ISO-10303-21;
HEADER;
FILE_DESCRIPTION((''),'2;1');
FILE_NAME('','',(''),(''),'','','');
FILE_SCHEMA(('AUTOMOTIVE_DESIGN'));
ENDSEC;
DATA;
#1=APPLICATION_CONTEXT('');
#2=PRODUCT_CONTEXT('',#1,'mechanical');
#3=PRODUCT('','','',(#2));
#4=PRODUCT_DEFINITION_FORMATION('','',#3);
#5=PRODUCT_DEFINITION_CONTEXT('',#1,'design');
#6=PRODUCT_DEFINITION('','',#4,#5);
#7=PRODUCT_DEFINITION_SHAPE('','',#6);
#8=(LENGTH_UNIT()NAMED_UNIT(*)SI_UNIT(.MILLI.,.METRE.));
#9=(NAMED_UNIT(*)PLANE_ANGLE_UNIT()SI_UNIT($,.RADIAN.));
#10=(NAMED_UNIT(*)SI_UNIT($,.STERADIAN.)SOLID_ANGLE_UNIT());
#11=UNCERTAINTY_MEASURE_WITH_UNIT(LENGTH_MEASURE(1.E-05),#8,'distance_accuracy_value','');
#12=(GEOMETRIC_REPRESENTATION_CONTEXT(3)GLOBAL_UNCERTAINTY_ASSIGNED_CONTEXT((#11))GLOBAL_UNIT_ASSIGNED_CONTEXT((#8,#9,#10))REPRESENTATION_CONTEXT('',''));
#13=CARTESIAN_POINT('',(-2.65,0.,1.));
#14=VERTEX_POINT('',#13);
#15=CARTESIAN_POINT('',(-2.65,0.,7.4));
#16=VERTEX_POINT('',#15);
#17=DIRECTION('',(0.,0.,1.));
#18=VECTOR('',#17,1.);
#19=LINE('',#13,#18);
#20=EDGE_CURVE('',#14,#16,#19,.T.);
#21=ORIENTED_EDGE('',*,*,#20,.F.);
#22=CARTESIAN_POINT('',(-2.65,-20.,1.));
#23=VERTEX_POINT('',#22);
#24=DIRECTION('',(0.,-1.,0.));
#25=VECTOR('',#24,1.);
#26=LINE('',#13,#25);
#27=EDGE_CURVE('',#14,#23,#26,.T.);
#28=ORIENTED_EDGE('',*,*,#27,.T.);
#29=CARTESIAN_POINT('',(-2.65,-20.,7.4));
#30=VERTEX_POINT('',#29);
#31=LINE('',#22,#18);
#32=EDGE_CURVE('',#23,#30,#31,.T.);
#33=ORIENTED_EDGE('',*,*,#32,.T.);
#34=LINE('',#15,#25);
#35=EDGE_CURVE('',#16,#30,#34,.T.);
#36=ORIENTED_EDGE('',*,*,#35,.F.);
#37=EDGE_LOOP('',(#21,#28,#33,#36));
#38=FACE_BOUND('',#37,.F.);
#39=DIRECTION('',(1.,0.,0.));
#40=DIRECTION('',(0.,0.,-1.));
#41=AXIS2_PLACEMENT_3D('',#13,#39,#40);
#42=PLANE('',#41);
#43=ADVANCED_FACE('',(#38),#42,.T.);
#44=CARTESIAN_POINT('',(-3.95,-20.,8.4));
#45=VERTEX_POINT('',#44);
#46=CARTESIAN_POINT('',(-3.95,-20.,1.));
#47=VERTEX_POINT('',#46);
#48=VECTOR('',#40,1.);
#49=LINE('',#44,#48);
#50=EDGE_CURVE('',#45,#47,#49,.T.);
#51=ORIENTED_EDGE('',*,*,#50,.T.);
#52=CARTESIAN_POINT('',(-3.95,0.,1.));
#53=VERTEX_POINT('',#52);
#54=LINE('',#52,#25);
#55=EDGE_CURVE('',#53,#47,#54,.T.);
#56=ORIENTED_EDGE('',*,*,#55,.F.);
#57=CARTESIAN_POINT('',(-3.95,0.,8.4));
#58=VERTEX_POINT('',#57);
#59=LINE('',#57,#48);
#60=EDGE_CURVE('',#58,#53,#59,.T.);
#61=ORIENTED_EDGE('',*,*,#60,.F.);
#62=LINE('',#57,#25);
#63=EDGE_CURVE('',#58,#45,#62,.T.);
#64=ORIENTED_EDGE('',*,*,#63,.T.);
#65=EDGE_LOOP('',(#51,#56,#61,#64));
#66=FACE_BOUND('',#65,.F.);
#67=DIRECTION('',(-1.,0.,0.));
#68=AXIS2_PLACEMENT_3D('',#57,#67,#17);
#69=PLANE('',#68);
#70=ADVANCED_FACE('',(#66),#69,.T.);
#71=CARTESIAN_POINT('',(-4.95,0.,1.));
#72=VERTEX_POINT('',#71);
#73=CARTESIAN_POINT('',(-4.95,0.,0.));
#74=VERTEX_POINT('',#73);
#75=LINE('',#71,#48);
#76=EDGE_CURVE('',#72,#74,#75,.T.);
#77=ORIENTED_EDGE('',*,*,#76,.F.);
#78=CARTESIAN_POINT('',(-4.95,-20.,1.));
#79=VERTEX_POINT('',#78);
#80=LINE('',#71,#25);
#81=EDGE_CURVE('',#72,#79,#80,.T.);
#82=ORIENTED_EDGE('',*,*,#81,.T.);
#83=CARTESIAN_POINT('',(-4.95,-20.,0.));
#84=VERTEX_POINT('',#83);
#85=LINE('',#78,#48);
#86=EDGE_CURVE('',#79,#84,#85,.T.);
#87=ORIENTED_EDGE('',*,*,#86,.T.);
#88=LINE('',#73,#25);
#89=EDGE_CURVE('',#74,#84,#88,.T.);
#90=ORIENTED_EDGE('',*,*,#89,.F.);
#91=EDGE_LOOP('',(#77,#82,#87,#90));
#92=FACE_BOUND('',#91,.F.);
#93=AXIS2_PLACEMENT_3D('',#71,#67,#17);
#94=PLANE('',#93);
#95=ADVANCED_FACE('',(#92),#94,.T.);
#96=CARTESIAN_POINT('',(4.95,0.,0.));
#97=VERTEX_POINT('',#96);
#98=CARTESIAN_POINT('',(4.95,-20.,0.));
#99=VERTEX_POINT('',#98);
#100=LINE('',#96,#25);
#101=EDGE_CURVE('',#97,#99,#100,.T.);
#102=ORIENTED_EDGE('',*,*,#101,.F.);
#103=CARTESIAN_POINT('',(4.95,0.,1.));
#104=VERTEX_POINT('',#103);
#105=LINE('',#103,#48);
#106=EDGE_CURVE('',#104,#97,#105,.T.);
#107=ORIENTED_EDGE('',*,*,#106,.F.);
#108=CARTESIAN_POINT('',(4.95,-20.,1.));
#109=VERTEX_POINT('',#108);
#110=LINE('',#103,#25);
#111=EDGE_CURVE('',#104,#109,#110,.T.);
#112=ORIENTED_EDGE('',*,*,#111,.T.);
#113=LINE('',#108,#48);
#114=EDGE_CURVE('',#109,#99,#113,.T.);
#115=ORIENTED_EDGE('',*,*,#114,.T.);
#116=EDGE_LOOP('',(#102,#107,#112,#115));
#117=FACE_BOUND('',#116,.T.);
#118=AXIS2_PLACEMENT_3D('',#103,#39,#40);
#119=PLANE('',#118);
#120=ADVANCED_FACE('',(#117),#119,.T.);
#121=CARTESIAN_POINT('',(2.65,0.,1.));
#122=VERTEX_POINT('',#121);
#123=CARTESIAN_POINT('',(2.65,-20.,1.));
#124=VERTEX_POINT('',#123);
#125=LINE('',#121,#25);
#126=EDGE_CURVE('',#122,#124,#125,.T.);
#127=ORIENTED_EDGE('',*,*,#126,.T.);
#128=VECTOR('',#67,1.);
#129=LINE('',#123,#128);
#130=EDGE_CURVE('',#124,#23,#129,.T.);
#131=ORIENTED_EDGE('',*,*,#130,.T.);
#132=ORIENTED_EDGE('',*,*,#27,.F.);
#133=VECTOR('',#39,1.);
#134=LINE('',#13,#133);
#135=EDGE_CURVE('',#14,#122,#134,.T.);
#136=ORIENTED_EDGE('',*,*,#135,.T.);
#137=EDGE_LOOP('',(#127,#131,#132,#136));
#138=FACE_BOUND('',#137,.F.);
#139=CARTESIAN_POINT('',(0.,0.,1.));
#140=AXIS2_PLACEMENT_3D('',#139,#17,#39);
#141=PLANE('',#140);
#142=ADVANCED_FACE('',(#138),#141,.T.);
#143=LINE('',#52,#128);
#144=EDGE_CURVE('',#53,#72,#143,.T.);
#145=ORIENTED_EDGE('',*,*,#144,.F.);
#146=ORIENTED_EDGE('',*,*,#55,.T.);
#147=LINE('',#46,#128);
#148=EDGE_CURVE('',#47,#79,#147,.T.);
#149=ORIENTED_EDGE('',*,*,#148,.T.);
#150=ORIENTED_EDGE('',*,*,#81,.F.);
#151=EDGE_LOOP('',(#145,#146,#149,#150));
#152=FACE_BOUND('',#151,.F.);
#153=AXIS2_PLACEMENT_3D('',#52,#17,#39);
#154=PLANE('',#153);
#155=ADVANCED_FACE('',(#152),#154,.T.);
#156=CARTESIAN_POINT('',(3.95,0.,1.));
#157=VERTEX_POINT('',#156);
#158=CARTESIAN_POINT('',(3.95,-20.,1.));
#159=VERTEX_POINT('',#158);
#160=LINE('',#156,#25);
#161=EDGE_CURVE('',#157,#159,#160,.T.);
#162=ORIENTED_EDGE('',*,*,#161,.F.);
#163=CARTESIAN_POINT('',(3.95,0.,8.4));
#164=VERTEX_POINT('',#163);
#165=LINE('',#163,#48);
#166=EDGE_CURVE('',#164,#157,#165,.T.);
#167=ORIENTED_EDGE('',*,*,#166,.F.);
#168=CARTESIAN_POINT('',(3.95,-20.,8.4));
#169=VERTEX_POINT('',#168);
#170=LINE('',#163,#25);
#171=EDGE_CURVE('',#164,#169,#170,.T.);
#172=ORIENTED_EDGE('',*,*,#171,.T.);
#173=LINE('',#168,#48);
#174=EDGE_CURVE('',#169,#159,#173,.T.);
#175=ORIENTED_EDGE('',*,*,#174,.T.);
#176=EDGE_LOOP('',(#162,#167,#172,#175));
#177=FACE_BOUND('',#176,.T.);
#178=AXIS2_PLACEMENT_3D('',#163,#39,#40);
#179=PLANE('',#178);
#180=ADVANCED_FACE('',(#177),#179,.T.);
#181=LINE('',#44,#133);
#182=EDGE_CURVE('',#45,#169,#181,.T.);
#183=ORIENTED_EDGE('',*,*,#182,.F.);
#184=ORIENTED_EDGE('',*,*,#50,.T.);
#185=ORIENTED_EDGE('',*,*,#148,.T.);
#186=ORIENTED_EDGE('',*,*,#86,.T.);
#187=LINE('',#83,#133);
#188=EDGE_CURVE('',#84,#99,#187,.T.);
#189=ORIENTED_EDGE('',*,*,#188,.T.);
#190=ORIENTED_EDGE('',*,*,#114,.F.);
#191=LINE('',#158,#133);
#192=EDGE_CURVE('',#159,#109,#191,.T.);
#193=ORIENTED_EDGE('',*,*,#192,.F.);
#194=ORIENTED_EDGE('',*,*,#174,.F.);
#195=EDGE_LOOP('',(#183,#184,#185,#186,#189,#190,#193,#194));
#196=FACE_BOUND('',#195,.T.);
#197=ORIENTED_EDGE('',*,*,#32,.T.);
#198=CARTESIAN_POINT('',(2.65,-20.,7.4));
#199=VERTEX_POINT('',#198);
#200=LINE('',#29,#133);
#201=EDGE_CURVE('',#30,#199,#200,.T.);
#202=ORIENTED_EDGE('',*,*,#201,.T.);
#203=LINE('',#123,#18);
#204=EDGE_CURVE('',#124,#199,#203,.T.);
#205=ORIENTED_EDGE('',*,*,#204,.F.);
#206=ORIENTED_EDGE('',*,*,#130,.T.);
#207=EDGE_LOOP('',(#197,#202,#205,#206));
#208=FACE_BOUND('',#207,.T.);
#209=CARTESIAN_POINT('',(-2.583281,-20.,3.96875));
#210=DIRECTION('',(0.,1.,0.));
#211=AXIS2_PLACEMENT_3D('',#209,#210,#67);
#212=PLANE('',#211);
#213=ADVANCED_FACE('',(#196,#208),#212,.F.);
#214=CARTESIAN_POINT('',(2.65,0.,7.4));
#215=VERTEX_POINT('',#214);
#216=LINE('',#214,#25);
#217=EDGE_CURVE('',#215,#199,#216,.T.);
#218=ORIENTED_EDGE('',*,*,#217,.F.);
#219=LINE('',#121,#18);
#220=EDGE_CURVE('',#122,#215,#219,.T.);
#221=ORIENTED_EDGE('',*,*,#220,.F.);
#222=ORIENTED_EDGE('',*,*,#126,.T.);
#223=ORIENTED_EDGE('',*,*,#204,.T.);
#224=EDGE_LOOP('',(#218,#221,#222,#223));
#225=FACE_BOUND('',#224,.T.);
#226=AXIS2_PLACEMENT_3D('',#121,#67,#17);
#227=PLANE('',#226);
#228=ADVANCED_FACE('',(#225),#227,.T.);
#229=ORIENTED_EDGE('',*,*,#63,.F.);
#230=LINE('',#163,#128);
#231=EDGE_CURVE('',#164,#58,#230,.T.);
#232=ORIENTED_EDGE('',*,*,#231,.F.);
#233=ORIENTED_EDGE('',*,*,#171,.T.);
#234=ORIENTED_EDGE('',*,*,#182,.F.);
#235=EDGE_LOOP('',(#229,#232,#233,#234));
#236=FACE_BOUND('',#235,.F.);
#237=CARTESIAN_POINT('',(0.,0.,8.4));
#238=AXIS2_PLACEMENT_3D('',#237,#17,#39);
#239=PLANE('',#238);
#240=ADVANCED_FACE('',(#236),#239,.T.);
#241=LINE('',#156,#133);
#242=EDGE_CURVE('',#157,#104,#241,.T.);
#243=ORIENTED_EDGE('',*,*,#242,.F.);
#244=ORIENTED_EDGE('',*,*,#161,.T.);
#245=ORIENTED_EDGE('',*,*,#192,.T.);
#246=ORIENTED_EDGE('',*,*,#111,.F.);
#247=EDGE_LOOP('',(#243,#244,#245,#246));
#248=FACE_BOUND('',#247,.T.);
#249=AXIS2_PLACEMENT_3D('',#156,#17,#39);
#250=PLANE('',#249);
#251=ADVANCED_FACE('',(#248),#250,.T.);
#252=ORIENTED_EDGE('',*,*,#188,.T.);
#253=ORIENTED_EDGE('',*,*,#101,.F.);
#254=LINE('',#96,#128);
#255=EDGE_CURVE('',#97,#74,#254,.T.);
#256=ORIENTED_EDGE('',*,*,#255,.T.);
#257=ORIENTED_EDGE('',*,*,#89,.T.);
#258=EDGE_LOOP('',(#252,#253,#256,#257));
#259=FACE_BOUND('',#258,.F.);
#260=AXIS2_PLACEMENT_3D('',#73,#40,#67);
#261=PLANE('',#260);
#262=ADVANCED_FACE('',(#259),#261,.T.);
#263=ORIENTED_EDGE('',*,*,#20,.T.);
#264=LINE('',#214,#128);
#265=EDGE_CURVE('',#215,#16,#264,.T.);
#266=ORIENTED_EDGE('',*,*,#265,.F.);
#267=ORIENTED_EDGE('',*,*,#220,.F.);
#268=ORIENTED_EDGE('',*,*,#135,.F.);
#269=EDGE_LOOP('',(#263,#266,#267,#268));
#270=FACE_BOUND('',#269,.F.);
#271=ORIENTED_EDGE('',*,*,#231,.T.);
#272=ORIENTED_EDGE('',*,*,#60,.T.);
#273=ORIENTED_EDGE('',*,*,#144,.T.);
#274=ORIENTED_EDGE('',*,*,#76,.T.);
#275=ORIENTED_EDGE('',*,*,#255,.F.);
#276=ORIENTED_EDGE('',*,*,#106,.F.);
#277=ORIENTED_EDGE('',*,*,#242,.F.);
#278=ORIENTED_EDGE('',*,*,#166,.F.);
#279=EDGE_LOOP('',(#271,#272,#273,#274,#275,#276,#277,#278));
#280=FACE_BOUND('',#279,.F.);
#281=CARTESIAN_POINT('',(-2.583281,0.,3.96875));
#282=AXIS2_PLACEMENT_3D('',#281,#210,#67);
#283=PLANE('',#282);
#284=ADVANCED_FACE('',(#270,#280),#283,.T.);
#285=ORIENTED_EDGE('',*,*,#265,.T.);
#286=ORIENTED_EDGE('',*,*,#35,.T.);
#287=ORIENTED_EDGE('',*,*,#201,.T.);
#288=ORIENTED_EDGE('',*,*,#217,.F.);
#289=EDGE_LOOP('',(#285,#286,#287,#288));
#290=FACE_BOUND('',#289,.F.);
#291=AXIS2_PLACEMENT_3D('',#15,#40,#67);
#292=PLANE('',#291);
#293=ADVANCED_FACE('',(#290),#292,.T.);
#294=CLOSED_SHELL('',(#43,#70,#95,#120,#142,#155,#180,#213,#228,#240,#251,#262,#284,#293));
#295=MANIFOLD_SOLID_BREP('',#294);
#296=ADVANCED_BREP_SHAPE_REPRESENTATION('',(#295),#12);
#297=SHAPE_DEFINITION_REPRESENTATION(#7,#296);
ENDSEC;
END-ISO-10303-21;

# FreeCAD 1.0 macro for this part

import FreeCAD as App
import Part
import Sketcher
from FreeCAD import Vector


def add_polygon(sketch, points):
    """Adds a closed chain of lines whose ends are joined by coincident constraints."""
    first, n = sketch.GeometryCount, len(points)
    for a, b in zip(points, points[1:] + points[:1]):
        sketch.addGeometry(Part.LineSegment(App.Vector(*a, 0), App.Vector(*b, 0)), False)
    for i in range(n):
        sketch.addConstraint(Sketcher.Constraint("Coincident", first + i, 2, first + (i + 1) % n, 1))

doc = App.newDocument("Part")
body = doc.addObject("PartDesign::Body", "Body")

# Sketch on XZ plane
sketch1 = body.newObject("Sketcher::SketchObject", "Sketch")
sketch1.AttachmentSupport = (doc.getObject("XZ_Plane"), [""])
sketch1.MapMode = "FlatFace"
add_polygon(sketch1, [(4, 1), (4, 8.4), (0, 8.4), (0, 7.4), (2.6, 7.4), (2.6, 1), (0, 1), (0, 0), (5, 0), (5, 1)])  # lines 0-9
sketch1.addConstraint([
    Sketcher.Constraint("Vertical", 0),
    Sketcher.Constraint("Horizontal", 1),
    Sketcher.Constraint("Vertical", 2),
    Sketcher.Constraint("Horizontal", 3),
    Sketcher.Constraint("Vertical", 4),
    Sketcher.Constraint("Horizontal", 5),
    Sketcher.Constraint("Vertical", 6),
    Sketcher.Constraint("Horizontal", 7),
    Sketcher.Constraint("Vertical", 8),
    Sketcher.Constraint("Horizontal", 9),
    Sketcher.Constraint("Coincident", 6, 2, -1, 1),
    Sketcher.Constraint("PointOnObject", 1, 2, -2),
    Sketcher.Constraint("Horizontal", 5, 2, 8, 2),
    Sketcher.Constraint("Equal", 9, 2),
    Sketcher.Constraint("Equal", 2, 6),
    Sketcher.Constraint("DistanceX", 9, 2, 9, 1, 1.0),
    Sketcher.Constraint("DistanceY", 0, 1, 0, 2, 7.4),
    Sketcher.Constraint("DistanceX", 1, 2, 1, 1, 3.95),
    Sketcher.Constraint("DistanceX", 3, 1, 3, 2, 2.65),
])
pad1 = body.newObject("PartDesign::Pad", "Pad")
pad1.Profile = sketch1
pad1.Length = 20
doc.recompute()

mirrored = body.newObject("PartDesign::Mirrored", "Mirrored")
mirrored.Originals = [pad1]
mirrored.MirrorPlane = (doc.getObject("YZ_Plane"), [""])
body.Tip = mirrored

doc.recompute()
